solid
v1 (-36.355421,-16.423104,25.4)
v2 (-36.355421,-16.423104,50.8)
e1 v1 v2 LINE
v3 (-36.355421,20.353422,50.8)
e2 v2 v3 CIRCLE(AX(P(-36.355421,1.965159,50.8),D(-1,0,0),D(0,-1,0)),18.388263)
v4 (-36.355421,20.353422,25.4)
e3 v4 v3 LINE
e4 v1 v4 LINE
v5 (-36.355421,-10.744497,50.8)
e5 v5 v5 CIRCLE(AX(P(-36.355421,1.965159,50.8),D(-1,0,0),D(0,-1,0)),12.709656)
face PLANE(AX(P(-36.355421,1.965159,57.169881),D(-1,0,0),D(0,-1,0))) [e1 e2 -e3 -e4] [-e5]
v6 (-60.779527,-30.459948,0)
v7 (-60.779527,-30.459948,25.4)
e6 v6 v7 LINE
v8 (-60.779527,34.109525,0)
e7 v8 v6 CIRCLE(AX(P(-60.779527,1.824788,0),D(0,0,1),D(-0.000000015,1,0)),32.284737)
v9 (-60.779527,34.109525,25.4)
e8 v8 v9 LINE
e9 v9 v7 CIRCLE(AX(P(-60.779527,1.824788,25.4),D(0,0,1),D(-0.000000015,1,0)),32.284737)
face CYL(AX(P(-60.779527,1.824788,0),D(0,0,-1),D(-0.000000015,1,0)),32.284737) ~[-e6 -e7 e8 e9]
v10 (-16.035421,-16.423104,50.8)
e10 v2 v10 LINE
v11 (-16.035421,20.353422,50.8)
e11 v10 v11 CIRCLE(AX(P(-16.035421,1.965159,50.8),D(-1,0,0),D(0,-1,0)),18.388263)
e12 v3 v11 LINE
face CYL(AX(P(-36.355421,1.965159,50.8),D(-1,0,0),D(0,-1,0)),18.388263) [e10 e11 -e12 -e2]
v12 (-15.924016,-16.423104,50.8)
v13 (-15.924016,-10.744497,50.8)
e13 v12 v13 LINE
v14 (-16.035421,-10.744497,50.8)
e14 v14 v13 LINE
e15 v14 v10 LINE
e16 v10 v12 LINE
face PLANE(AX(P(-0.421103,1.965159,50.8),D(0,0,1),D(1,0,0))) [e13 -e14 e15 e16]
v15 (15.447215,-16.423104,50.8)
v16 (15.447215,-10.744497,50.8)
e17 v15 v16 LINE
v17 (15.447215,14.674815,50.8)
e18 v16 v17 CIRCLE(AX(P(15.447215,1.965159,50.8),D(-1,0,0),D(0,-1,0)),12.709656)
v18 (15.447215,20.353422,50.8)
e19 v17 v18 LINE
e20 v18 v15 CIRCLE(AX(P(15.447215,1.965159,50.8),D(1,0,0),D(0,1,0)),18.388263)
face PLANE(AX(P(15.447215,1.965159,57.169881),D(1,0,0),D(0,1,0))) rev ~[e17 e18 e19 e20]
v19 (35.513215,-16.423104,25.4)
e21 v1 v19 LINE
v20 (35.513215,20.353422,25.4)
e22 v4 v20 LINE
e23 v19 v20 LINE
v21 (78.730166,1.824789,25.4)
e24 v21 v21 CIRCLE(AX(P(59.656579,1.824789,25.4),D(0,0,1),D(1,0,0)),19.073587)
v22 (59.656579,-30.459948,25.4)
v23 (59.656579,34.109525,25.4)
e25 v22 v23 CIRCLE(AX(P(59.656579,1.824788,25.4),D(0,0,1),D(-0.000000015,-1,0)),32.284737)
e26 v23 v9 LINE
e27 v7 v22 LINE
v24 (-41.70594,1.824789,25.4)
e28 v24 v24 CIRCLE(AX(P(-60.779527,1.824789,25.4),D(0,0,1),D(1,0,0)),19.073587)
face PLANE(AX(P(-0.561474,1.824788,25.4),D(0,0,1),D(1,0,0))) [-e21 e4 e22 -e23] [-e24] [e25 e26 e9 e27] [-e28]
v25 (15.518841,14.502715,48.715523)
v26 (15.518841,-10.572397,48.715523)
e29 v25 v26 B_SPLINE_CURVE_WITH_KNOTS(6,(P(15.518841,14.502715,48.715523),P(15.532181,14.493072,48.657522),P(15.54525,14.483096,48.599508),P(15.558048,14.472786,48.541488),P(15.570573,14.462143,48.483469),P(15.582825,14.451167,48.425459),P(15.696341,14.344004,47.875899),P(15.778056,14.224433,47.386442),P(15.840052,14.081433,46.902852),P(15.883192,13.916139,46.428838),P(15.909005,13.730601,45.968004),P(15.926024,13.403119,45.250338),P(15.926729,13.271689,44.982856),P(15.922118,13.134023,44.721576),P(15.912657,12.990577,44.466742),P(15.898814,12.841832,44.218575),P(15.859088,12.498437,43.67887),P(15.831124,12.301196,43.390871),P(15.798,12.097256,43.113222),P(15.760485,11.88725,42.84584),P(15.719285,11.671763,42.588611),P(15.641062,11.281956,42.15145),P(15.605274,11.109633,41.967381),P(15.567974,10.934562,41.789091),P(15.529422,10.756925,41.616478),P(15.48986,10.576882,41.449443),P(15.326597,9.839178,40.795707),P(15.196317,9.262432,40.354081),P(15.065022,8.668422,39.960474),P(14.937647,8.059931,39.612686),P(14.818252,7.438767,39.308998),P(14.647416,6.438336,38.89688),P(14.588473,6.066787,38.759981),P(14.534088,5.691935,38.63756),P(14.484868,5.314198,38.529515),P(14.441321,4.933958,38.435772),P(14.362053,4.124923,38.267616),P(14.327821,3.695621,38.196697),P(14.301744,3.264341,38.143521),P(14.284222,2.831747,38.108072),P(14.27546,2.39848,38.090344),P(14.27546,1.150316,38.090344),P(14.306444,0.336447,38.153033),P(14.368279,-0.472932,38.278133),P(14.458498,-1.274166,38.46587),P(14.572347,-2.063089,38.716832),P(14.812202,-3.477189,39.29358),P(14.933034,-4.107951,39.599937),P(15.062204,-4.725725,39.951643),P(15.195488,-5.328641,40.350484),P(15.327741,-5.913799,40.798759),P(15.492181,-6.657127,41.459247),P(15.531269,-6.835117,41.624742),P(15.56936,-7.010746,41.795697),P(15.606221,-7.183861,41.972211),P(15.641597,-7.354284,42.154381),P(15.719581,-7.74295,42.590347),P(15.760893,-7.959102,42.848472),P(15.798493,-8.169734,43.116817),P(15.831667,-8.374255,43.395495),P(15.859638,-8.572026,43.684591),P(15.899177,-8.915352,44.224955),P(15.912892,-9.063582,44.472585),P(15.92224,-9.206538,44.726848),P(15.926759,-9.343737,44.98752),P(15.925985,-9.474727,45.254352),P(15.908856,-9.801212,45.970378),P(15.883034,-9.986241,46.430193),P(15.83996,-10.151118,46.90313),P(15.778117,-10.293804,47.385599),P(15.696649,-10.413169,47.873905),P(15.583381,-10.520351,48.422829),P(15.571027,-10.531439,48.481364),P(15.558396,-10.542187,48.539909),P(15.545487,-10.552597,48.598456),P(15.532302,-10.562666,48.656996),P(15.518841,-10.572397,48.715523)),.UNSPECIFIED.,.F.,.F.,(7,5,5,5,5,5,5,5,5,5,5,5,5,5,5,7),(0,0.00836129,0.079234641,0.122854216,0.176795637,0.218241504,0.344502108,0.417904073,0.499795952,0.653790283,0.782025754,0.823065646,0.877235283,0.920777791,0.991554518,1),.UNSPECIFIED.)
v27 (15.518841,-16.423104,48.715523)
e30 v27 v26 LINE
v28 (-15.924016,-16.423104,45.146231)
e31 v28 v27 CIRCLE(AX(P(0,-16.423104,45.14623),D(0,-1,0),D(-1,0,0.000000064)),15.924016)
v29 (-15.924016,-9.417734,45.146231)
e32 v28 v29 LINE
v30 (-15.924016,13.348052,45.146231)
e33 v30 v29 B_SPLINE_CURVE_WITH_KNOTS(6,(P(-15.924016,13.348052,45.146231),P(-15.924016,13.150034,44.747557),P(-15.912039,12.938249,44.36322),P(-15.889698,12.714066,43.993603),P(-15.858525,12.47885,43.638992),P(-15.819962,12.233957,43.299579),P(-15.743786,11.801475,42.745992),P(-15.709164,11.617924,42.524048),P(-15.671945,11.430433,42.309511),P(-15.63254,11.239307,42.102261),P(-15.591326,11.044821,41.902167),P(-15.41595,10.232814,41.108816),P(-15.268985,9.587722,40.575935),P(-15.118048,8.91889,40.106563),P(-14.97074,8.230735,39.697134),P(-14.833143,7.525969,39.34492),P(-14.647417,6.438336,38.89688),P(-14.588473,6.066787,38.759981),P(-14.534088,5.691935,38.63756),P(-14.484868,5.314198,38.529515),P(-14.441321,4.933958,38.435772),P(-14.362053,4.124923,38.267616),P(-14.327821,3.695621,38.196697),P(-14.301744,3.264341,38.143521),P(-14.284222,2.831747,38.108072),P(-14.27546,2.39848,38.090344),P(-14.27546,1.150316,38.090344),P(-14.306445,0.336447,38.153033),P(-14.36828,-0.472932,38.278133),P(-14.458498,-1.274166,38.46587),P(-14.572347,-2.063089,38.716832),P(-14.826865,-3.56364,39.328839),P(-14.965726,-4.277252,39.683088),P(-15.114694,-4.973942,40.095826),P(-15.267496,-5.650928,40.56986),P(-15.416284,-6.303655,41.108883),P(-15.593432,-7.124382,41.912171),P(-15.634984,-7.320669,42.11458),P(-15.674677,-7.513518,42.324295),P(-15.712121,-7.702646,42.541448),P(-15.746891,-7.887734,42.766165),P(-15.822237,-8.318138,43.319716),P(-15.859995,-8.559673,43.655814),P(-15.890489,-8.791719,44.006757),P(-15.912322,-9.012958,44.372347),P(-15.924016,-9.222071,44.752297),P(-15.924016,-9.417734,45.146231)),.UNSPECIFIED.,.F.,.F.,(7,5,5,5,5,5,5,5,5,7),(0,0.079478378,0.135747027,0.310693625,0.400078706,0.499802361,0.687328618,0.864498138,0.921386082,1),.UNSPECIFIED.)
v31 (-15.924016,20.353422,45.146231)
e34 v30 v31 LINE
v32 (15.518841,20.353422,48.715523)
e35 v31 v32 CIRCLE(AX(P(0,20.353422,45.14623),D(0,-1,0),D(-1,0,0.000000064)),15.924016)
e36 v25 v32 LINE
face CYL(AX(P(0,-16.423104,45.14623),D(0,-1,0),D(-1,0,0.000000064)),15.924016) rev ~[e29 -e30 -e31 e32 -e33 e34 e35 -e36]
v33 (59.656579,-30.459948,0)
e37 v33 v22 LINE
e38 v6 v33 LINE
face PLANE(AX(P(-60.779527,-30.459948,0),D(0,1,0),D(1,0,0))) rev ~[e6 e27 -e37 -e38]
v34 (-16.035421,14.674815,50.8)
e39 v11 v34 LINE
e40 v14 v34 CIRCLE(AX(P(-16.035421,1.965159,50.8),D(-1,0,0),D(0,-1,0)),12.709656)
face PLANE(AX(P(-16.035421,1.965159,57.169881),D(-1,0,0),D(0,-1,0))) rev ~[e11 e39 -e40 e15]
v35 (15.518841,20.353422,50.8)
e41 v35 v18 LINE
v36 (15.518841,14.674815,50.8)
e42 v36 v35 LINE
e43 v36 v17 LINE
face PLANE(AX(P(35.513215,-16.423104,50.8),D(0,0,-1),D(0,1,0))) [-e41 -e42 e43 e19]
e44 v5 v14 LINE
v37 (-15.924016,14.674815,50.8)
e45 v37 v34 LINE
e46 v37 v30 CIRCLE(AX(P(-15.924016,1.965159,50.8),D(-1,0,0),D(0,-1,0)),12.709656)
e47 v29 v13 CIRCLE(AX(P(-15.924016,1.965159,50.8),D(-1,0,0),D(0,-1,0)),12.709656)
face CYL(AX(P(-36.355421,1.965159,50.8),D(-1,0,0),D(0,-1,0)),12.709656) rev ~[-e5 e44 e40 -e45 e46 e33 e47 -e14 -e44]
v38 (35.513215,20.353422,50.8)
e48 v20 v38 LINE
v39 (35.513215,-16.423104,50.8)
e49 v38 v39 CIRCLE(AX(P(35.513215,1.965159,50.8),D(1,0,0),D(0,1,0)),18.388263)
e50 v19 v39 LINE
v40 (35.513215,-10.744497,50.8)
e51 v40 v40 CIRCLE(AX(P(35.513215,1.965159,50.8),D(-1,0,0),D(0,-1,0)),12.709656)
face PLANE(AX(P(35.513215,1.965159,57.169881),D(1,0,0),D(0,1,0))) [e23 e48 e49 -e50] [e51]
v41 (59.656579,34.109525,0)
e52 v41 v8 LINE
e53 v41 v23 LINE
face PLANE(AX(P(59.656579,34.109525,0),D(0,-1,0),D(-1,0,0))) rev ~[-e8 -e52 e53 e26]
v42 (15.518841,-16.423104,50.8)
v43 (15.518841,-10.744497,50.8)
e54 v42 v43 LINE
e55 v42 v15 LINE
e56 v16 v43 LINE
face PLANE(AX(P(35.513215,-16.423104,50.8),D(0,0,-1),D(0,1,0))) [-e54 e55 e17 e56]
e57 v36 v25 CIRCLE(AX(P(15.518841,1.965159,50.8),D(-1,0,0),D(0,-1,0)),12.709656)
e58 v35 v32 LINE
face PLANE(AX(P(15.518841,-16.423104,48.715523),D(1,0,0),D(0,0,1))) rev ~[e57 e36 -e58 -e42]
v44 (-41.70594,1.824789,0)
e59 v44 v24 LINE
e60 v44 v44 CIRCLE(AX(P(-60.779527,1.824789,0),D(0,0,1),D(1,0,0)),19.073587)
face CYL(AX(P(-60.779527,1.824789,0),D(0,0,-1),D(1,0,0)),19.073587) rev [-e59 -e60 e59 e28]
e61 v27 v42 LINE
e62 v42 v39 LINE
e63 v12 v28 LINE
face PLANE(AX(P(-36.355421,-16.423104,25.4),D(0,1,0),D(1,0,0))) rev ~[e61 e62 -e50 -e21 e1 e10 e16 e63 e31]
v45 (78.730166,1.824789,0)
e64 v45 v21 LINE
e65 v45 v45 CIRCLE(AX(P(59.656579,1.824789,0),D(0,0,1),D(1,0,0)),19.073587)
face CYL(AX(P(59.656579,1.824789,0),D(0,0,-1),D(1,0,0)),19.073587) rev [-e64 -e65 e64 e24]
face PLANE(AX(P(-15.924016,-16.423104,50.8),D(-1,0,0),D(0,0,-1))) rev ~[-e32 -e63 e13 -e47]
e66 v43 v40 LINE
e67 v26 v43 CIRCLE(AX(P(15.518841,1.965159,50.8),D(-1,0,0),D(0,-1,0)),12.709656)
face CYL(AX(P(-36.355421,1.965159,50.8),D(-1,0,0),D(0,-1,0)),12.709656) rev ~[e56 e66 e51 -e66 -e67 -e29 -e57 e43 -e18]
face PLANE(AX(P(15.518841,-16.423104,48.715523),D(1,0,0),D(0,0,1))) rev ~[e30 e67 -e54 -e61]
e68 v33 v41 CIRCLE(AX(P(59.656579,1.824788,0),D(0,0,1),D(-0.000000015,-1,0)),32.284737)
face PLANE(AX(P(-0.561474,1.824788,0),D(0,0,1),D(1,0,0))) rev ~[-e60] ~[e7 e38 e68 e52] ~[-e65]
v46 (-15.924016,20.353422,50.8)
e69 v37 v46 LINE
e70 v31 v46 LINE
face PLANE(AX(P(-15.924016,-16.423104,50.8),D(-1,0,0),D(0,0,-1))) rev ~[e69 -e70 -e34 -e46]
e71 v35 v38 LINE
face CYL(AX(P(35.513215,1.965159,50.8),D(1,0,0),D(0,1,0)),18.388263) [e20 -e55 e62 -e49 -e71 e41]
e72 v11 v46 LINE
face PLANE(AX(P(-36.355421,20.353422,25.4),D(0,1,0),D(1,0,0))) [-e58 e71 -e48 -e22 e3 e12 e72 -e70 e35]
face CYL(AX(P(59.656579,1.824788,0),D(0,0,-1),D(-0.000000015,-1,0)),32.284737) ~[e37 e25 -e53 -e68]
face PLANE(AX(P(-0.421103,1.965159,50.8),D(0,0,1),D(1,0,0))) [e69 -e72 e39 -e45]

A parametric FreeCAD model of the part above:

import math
import FreeCAD as App
import Part
import Sketcher

V = App.Vector
Q = App.Units.Quantity


def add_polygon(sketch, points):
    """Adds a closed chain of lines whose ends are joined by coincident constraints."""
    first, n = sketch.GeometryCount, len(points)
    for a, b in zip(points, points[1:] + points[:1]):
        sketch.addGeometry(Part.LineSegment(App.Vector(*a, 0), App.Vector(*b, 0)), False)
    for i in range(n):
        sketch.addConstraint(Sketcher.Constraint("Coincident", first + i, 2, first + (i + 1) % n, 1))

doc = App.newDocument("Part")
params = doc.addObject("Spreadsheet::Sheet", "Params")
for row, (alias, value) in enumerate([
    ("pad1_length", "1 in"),
    ("pad2_length", "1 in"),
    ("pocket1_length", "1.73 in"),
    ("pad3_length", "0.8 in"),
    ("pad4_length", "0.79 in"),
    ("pocket2_length", "3.49 in"),
], start=1):
    params.set(f"A{row}", alias)
    params.set(f"B{row}", "=" + value)
    params.setAlias(f"B{row}", alias)

body = doc.addObject("PartDesign::Body", "Body")

# Sketch on XY plane
sketch1 = body.newObject("Sketcher::SketchObject", "Sketch")
sketch1.AttachmentSupport = (doc.getObject("XY_Plane"), [""])
sketch1.MapMode = "FlatFace"
sketch1.addGeometry([
    Part.LineSegment(V(60, 34, 0), V(-61, 34, 0)),  # 0
    Part.ArcOfCircle(Part.Circle(V(-61, 2, 0), V(0, 0, 1), 32), math.radians(90), math.radians(270)),  # 1
    Part.LineSegment(V(-61, -30, 0), V(60, -30, 0)),  # 2
    Part.ArcOfCircle(Part.Circle(V(60, 2, 0), V(0, 0, 1), 32), math.radians(-90), math.radians(90)),  # 3
    Part.Circle(V(-61, 2, 0), V(0, 0, 1), 19),  # 4
    Part.Circle(V(60, 2, 0), V(0, 0, 1), 19),  # 5
], False)
sketch1.addConstraint([
    Sketcher.Constraint("Tangent", 0, 2, 1, 1),
    Sketcher.Constraint("Tangent", 1, 2, 2, 1),
    Sketcher.Constraint("Tangent", 2, 2, 3, 1),
    Sketcher.Constraint("Tangent", 3, 2, 0, 1),
    Sketcher.Constraint("Horizontal", 0),
    Sketcher.Constraint("Horizontal", 2),
    Sketcher.Constraint("Coincident", 4, 3, 1, 3),
    Sketcher.Constraint("Coincident", 5, 3, 3, 3),
    Sketcher.Constraint("Equal", 4, 5),
    Sketcher.Constraint("Diameter", 4, Q("38.147174 mm")),
    Sketcher.Constraint("Radius", 1, Q("32.284737 mm")),
    Sketcher.Constraint("DistanceX", 0, 2, 0, 1, Q("120.436106 mm")),
    Sketcher.Constraint("DistanceY", -1, 1, 1, 3, Q("1.824788 mm")),
    Sketcher.Constraint("DistanceX", -1, 1, 3, 3, Q("59.656579 mm")),
])
pad1 = body.newObject("PartDesign::Pad", "Pad")
pad1.Profile = sketch1
pad1.setExpression("Length", "Params.pad1_length")

# Sketch on XY plane
sketch2 = body.newObject("Sketcher::SketchObject", "Sketch001")
sketch2.AttachmentSupport = (doc.getObject("XY_Plane"), [""])
sketch2.MapMode = "FlatFace"
sketch2.AttachmentOffset = App.Placement(V(0, 0, 1 * 25.4), App.Rotation())
add_polygon(sketch2, [(-36, 20), (-36, -16), (36, -16), (36, 20)])  # lines 0-3
sketch2.addConstraint([
    Sketcher.Constraint("Vertical", 0),
    Sketcher.Constraint("Horizontal", 1),
    Sketcher.Constraint("Vertical", 2),
    Sketcher.Constraint("Horizontal", 3),
    Sketcher.Constraint("DistanceX", 1, 1, 1, 2, Q("71.868636 mm")),
    Sketcher.Constraint("DistanceY", 0, 2, 0, 1, Q("36.776526 mm")),
    Sketcher.Constraint("DistanceX", 0, 2, -1, 1, Q("36.355421 mm")),
    Sketcher.Constraint("DistanceY", -1, 1, 2, 2, Q("20.353422 mm")),
])
pad2 = body.newObject("PartDesign::Pad", "Pad001")
pad2.Profile = sketch2
pad2.setExpression("Length", "Params.pad2_length")

# Sketch on XZ plane
sketch3 = body.newObject("Sketcher::SketchObject", "Sketch002")
sketch3.AttachmentSupport = (doc.getObject("XZ_Plane"), [""])
sketch3.MapMode = "FlatFace"
sketch3.AttachmentOffset = App.Placement(V(0, 0, 16.423104), App.Rotation())
sketch3.addGeometry([
    Part.LineSegment(V(15.5, 50.8, 0), V(-15.9, 50.8, 0)),
    Part.LineSegment(V(-15.9, 50.8, 0), V(-15.9, 45.1, 0)),
    Part.ArcOfCircle(Part.Circle(V(0, 45.1, 0), V(0, 0, 1), 15.9), math.radians(180), math.radians(373)),
    Part.LineSegment(V(15.5, 48.7, 0), V(15.5, 50.8, 0)),
], False)
sketch3.addConstraint([
    Sketcher.Constraint("Coincident", 0, 2, 1, 1),
    Sketcher.Constraint("Tangent", 1, 2, 2, 1),
    Sketcher.Constraint("Coincident", 2, 2, 3, 1),
    Sketcher.Constraint("Coincident", 3, 2, 0, 1),
    Sketcher.Constraint("Horizontal", 0),
    Sketcher.Constraint("Vertical", 1),
    Sketcher.Constraint("Vertical", 3),
    Sketcher.Constraint("PointOnObject", 2, 3, -2),
    Sketcher.Constraint("DistanceY", -1, 1, 0, 2, Q("2 in")),
    Sketcher.Constraint("Radius", 2, Q("15.924016 mm")),
    Sketcher.Constraint("DistanceY", 1, 2, 1, 1, Q("5.653769 mm")),
    Sketcher.Constraint("DistanceX", 0, 2, 0, 1, Q("31.442857 mm")),
])
pocket1 = body.newObject("PartDesign::Pocket", "Pocket")
pocket1.Profile = sketch3
pocket1.setExpression("Length", "Params.pocket1_length")

# Sketch on YZ plane
sketch4 = body.newObject("Sketcher::SketchObject", "Sketch003")
sketch4.AttachmentSupport = (doc.getObject("YZ_Plane"), [""])
sketch4.MapMode = "FlatFace"
sketch4.AttachmentOffset = App.Placement(V(0, 0, -36.355421), App.Rotation())
sketch4.addGeometry([
    Part.LineSegment(V(20, 51, 0), V(-16, 51, 0)),
    Part.ArcOfCircle(Part.Circle(V(2, 51, 0), V(0, 0, 1), 18), math.radians(0), math.radians(180)),
], False)
sketch4.addConstraint([
    Sketcher.Constraint("Coincident", 0, 1, 1, 1),
    Sketcher.Constraint("Coincident", 1, 2, 0, 2),
    Sketcher.Constraint("Horizontal", 0),
    Sketcher.Constraint("Horizontal", 1, 3, 0, 1),
    Sketcher.Constraint("DistanceY", -1, 1, 1, 3, Q("2 in")),
    Sketcher.Constraint("Radius", 1, Q("18.388263 mm")),
    Sketcher.Constraint("DistanceX", -1, 1, 1, 3, Q("1.965159 mm")),
])
pad3 = body.newObject("PartDesign::Pad", "Pad002")
pad3.Profile = sketch4
pad3.setExpression("Length", "Params.pad3_length")

# Sketch on YZ plane
sketch5 = body.newObject("Sketcher::SketchObject", "Sketch004")
sketch5.AttachmentSupport = (doc.getObject("YZ_Plane"), [""])
sketch5.MapMode = "FlatFace"
sketch5.AttachmentOffset = App.Placement(V(0, 0, 35.513215), App.Rotation())
sketch5.addGeometry([
    Part.ArcOfCircle(Part.Circle(V(2, 51, 0), V(0, 0, 1), 18), math.radians(0), math.radians(180)),
    Part.LineSegment(V(-16, 51, 0), V(20, 51, 0)),
], False)
sketch5.addConstraint([
    Sketcher.Constraint("Coincident", 0, 1, 1, 2),
    Sketcher.Constraint("Coincident", 1, 1, 0, 2),
    Sketcher.Constraint("Horizontal", 1),
    Sketcher.Constraint("DistanceY", -1, 1, 0, 3, Q("2 in")),
    Sketcher.Constraint("DistanceY", -1, 1, 0, 1, Q("2 in")),
    Sketcher.Constraint("Radius", 0, Q("18.388263 mm")),
    Sketcher.Constraint("DistanceX", -1, 1, 0, 3, Q("1.965159 mm")),
])
pad4 = body.newObject("PartDesign::Pad", "Pad003")
pad4.Profile = sketch5
pad4.setExpression("Length", "Params.pad4_length")
pad4.Reversed = True

# Sketch on YZ plane
sketch6 = body.newObject("Sketcher::SketchObject", "Sketch005")
sketch6.AttachmentSupport = (doc.getObject("YZ_Plane"), [""])
sketch6.MapMode = "FlatFace"
sketch6.AttachmentOffset = App.Placement(V(0, 0, -36.355421), App.Rotation())
sketch6.addGeometry(Part.Circle(V(2, 51, 0), V(0, 0, 1), 13), False)
sketch6.addConstraint([
    Sketcher.Constraint("DistanceY", -1, 1, 0, 3, Q("2 in")),
    Sketcher.Constraint("Diameter", 0, Q("25.419312 mm")),
    Sketcher.Constraint("DistanceX", -1, 1, 0, 3, Q("1.965159 mm")),
])
pocket2 = body.newObject("PartDesign::Pocket", "Pocket001")
pocket2.Profile = sketch6
pocket2.setExpression("Length", "Params.pocket2_length")
pocket2.Reversed = True

doc.recompute()
